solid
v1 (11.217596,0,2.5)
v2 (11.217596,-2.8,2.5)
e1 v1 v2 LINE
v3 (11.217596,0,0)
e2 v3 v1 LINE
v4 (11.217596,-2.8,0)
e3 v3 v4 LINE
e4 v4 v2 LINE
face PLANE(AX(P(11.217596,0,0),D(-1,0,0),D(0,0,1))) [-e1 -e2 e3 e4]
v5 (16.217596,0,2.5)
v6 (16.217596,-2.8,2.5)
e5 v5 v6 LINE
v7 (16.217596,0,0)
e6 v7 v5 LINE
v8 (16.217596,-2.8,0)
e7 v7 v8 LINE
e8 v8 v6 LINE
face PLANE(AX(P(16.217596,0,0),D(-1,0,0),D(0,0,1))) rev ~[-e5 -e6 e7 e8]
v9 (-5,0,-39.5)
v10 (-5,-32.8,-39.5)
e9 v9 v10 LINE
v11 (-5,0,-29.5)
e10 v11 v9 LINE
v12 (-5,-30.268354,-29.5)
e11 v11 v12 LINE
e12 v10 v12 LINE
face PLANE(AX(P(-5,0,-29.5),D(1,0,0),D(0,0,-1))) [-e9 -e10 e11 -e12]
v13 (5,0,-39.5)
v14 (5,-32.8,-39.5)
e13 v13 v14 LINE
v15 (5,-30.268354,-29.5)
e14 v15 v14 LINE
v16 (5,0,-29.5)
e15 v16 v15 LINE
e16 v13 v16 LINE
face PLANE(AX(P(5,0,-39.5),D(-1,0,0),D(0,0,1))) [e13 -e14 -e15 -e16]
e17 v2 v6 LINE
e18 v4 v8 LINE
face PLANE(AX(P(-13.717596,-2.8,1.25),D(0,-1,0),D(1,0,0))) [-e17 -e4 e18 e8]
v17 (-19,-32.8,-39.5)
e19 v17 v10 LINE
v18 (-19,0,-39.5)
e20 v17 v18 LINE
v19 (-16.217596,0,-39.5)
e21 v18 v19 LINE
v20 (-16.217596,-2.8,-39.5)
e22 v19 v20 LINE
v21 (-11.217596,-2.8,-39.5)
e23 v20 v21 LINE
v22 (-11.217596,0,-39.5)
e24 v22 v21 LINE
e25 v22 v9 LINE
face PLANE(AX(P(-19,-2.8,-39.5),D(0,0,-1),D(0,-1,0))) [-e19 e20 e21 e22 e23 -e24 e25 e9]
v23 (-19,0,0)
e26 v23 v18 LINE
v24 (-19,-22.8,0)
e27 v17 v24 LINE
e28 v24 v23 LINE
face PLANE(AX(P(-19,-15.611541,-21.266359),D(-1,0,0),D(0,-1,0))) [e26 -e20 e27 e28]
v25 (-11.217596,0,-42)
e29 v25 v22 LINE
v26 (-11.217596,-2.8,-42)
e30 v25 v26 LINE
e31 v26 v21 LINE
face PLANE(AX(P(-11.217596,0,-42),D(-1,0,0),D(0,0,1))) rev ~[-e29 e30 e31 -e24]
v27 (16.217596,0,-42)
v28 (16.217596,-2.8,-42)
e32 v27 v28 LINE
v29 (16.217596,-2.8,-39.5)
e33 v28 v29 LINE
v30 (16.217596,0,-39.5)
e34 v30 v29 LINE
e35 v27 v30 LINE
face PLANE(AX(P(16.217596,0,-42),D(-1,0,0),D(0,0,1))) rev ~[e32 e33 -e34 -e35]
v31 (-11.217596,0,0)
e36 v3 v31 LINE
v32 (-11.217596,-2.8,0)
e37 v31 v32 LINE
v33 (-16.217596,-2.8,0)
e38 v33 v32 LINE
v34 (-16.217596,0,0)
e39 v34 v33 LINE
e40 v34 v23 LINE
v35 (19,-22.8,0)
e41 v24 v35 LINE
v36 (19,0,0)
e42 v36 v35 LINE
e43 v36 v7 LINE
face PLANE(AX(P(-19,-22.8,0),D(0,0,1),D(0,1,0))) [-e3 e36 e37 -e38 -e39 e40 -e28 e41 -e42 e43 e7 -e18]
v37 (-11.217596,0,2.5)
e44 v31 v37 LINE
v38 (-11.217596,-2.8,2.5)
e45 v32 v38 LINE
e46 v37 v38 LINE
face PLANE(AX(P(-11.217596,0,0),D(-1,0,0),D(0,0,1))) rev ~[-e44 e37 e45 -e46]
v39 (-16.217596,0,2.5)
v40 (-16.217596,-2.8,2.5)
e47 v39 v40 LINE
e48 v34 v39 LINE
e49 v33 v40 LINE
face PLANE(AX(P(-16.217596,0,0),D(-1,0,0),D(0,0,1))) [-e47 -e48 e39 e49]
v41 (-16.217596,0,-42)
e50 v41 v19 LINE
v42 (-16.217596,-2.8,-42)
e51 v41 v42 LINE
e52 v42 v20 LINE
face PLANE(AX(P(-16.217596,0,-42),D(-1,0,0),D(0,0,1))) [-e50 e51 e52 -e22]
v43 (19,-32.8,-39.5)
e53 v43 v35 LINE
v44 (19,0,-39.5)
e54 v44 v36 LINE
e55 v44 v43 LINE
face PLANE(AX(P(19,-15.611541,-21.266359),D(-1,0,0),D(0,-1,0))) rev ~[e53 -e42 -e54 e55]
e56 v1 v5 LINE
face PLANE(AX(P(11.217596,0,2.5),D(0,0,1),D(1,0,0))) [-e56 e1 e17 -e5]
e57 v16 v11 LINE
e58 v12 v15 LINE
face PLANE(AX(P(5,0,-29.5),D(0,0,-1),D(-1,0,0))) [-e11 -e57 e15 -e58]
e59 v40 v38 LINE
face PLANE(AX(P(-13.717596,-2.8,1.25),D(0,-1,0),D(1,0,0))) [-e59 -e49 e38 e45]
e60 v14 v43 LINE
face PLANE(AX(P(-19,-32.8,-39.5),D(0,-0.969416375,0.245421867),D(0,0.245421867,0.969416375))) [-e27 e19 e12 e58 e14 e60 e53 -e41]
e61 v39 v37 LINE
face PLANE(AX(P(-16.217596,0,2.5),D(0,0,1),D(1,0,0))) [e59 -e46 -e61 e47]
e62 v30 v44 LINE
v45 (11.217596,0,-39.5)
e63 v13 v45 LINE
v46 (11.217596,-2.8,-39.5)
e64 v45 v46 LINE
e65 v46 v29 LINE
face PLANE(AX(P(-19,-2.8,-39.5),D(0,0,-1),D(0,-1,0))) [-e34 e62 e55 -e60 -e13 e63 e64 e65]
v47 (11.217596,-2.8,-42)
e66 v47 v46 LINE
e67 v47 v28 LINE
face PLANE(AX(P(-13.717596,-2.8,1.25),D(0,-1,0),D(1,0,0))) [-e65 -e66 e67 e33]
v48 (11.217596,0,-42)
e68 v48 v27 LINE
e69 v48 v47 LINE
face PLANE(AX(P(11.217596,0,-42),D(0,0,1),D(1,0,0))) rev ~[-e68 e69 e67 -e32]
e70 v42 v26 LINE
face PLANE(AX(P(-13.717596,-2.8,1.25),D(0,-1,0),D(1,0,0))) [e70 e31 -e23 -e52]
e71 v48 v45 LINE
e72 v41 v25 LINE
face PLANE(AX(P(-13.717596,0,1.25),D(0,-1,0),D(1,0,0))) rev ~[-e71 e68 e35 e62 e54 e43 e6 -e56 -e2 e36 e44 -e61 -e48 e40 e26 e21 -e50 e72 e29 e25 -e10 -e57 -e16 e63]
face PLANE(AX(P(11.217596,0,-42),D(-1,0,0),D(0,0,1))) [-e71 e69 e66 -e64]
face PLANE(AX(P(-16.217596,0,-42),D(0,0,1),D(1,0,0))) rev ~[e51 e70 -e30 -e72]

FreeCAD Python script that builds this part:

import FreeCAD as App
import Part
import Sketcher

doc = App.newDocument("Part")
body = doc.addObject("PartDesign::Body", "Body")

# Sketch on XZ plane
sketch1 = body.newObject("Sketcher::SketchObject", "Sketch")
sketch1.AttachmentSupport = (doc.getObject("XZ_Plane"), [""])
sketch1.MapMode = "FlatFace"
sketch1.addGeometry(Part.LineSegment(App.Vector(-16.2, 2.5, 0), App.Vector(-16.2, 0, 0)), False)
sketch1.addGeometry(Part.LineSegment(App.Vector(-16.2, 0, 0), App.Vector(-19, 0, 0)), False)
sketch1.addGeometry(Part.LineSegment(App.Vector(-19, 0, 0), App.Vector(-19, -39.5, 0)), False)
sketch1.addGeometry(Part.LineSegment(App.Vector(-19, -39.5, 0), App.Vector(-16.2, -39.5, 0)), False)
sketch1.addGeometry(Part.LineSegment(App.Vector(-16.2, -39.5, 0), App.Vector(-16.2, -42, 0)), False)
sketch1.addGeometry(Part.LineSegment(App.Vector(-16.2, -42, 0), App.Vector(-11.2, -42, 0)), False)
sketch1.addGeometry(Part.LineSegment(App.Vector(-11.2, -42, 0), App.Vector(-11.2, -39.5, 0)), False)
sketch1.addGeometry(Part.LineSegment(App.Vector(-11.2, -39.5, 0), App.Vector(11.2, -39.5, 0)), False)
sketch1.addGeometry(Part.LineSegment(App.Vector(11.2, -39.5, 0), App.Vector(11.2, -42, 0)), False)
sketch1.addGeometry(Part.LineSegment(App.Vector(11.2, -42, 0), App.Vector(16.2, -42, 0)), False)
sketch1.addGeometry(Part.LineSegment(App.Vector(16.2, -42, 0), App.Vector(16.2, -39.5, 0)), False)
sketch1.addGeometry(Part.LineSegment(App.Vector(16.2, -39.5, 0), App.Vector(19, -39.5, 0)), False)
sketch1.addGeometry(Part.LineSegment(App.Vector(19, -39.5, 0), App.Vector(19, 0, 0)), False)
sketch1.addGeometry(Part.LineSegment(App.Vector(19, 0, 0), App.Vector(16.2, 0, 0)), False)
sketch1.addGeometry(Part.LineSegment(App.Vector(16.2, 0, 0), App.Vector(16.2, 2.5, 0)), False)
sketch1.addGeometry(Part.LineSegment(App.Vector(16.2, 2.5, 0), App.Vector(11.2, 2.5, 0)), False)
sketch1.addGeometry(Part.LineSegment(App.Vector(11.2, 2.5, 0), App.Vector(11.2, 0, 0)), False)
sketch1.addGeometry(Part.LineSegment(App.Vector(11.2, 0, 0), App.Vector(-11.2, 0, 0)), False)
sketch1.addGeometry(Part.LineSegment(App.Vector(-11.2, 0, 0), App.Vector(-11.2, 2.5, 0)), False)
sketch1.addGeometry(Part.LineSegment(App.Vector(-11.2, 2.5, 0), App.Vector(-16.2, 2.5, 0)), False)
sketch1.addConstraint(Sketcher.Constraint("Coincident", 0, 2, 1, 1))
sketch1.addConstraint(Sketcher.Constraint("Coincident", 1, 2, 2, 1))
sketch1.addConstraint(Sketcher.Constraint("Coincident", 2, 2, 3, 1))
sketch1.addConstraint(Sketcher.Constraint("Coincident", 3, 2, 4, 1))
sketch1.addConstraint(Sketcher.Constraint("Coincident", 4, 2, 5, 1))
sketch1.addConstraint(Sketcher.Constraint("Coincident", 5, 2, 6, 1))
sketch1.addConstraint(Sketcher.Constraint("Coincident", 6, 2, 7, 1))
sketch1.addConstraint(Sketcher.Constraint("Coincident", 7, 2, 8, 1))
sketch1.addConstraint(Sketcher.Constraint("Coincident", 8, 2, 9, 1))
sketch1.addConstraint(Sketcher.Constraint("Coincident", 9, 2, 10, 1))
sketch1.addConstraint(Sketcher.Constraint("Coincident", 10, 2, 11, 1))
sketch1.addConstraint(Sketcher.Constraint("Coincident", 11, 2, 12, 1))
sketch1.addConstraint(Sketcher.Constraint("Coincident", 12, 2, 13, 1))
sketch1.addConstraint(Sketcher.Constraint("Coincident", 13, 2, 14, 1))
sketch1.addConstraint(Sketcher.Constraint("Coincident", 14, 2, 15, 1))
sketch1.addConstraint(Sketcher.Constraint("Coincident", 15, 2, 16, 1))
sketch1.addConstraint(Sketcher.Constraint("Coincident", 16, 2, 17, 1))
sketch1.addConstraint(Sketcher.Constraint("Coincident", 17, 2, 18, 1))
sketch1.addConstraint(Sketcher.Constraint("Coincident", 18, 2, 19, 1))
sketch1.addConstraint(Sketcher.Constraint("Coincident", 19, 2, 0, 1))
sketch1.addConstraint(Sketcher.Constraint("Vertical", 0))
sketch1.addConstraint(Sketcher.Constraint("Horizontal", 1))
sketch1.addConstraint(Sketcher.Constraint("Vertical", 2))
sketch1.addConstraint(Sketcher.Constraint("Horizontal", 3))
sketch1.addConstraint(Sketcher.Constraint("Vertical", 4))
sketch1.addConstraint(Sketcher.Constraint("Horizontal", 5))
sketch1.addConstraint(Sketcher.Constraint("Vertical", 6))
sketch1.addConstraint(Sketcher.Constraint("Horizontal", 7))
sketch1.addConstraint(Sketcher.Constraint("Vertical", 8))
sketch1.addConstraint(Sketcher.Constraint("Horizontal", 9))
sketch1.addConstraint(Sketcher.Constraint("Vertical", 10))
sketch1.addConstraint(Sketcher.Constraint("Horizontal", 11))
sketch1.addConstraint(Sketcher.Constraint("Vertical", 12))
sketch1.addConstraint(Sketcher.Constraint("Horizontal", 13))
sketch1.addConstraint(Sketcher.Constraint("Vertical", 14))
sketch1.addConstraint(Sketcher.Constraint("Horizontal", 15))
sketch1.addConstraint(Sketcher.Constraint("Vertical", 16))
sketch1.addConstraint(Sketcher.Constraint("Horizontal", 17))
sketch1.addConstraint(Sketcher.Constraint("Vertical", 18))
sketch1.addConstraint(Sketcher.Constraint("Horizontal", 19))
sketch1.addConstraint(Sketcher.Constraint("Symmetric", 1, 2, 12, 2, -1, 1))
sketch1.addConstraint(Sketcher.Constraint("Symmetric", 16, 2, 17, 2, -1, 1))
sketch1.addConstraint(Sketcher.Constraint("Symmetric", 5, 2, 8, 2, -2))
sketch1.addConstraint(Sketcher.Constraint("Symmetric", 3, 2, 10, 2, -2))
sketch1.addConstraint(Sketcher.Constraint("Symmetric", 0, 2, 13, 2, -2))
sketch1.addConstraint(Sketcher.Constraint("Horizontal", 3, 2, 6, 2))
sketch1.addConstraint(Sketcher.Constraint("Horizontal", 15, 2, 18, 2))
sketch1.addConstraint(Sketcher.Constraint("Vertical", 0, 2, 3, 2))
sketch1.addConstraint(Sketcher.Constraint("Vertical", 8, 2, 15, 2))
sketch1.addConstraint(Sketcher.Constraint("Equal", 0, 4))
sketch1.addConstraint(Sketcher.Constraint("DistanceX", 5, 1, 5, 2, 5.0))
sketch1.addConstraint(Sketcher.Constraint("DistanceY", 0, 2, 0, 1, 2.5))
sketch1.addConstraint(Sketcher.Constraint("DistanceY", 2, 2, 2, 1, 39.5))
sketch1.addConstraint(Sketcher.Constraint("DistanceX", 1, 2, -1, 1, 19.0))
sketch1.addConstraint(Sketcher.Constraint("DistanceX", 1, 2, 1, 1, 2.782404))
pad1 = body.newObject("PartDesign::Pad", "Pad")
pad1.Profile = sketch1
pad1.Length = 2.8

# Sketch on YZ plane
sketch2 = body.newObject("Sketcher::SketchObject", "Sketch001")
sketch2.AttachmentSupport = (doc.getObject("YZ_Plane"), [""])
sketch2.MapMode = "FlatFace"
sketch2.AttachmentOffset = App.Placement(App.Vector(0, 0, -19), App.Rotation())
sketch2.addGeometry(Part.LineSegment(App.Vector(-3, 0, 0), App.Vector(-3, -40, 0)), False)
sketch2.addGeometry(Part.LineSegment(App.Vector(-3, -40, 0), App.Vector(-33, -40, 0)), False)
sketch2.addGeometry(Part.LineSegment(App.Vector(-33, -40, 0), App.Vector(-23, 0, 0)), False)
sketch2.addGeometry(Part.LineSegment(App.Vector(-23, 0, 0), App.Vector(-3, 0, 0)), False)
sketch2.addConstraint(Sketcher.Constraint("Coincident", 0, 2, 1, 1))
sketch2.addConstraint(Sketcher.Constraint("Coincident", 1, 2, 2, 1))
sketch2.addConstraint(Sketcher.Constraint("Coincident", 2, 2, 3, 1))
sketch2.addConstraint(Sketcher.Constraint("Coincident", 3, 2, 0, 1))
sketch2.addConstraint(Sketcher.Constraint("Vertical", 0))
sketch2.addConstraint(Sketcher.Constraint("Horizontal", 1))
sketch2.addConstraint(Sketcher.Constraint("Horizontal", 3))
sketch2.addConstraint(Sketcher.Constraint("PointOnObject", 2, 2, -1))
sketch2.addConstraint(Sketcher.Constraint("DistanceX", 1, 2, 1, 1, 30.0))
sketch2.addConstraint(Sketcher.Constraint("DistanceX", 3, 1, 3, 2, 20.0))
sketch2.addConstraint(Sketcher.Constraint("DistanceY", 0, 2, 0, 1, 39.5))
sketch2.addConstraint(Sketcher.Constraint("DistanceX", 0, 2, -1, 1, 2.8))
pad2 = body.newObject("PartDesign::Pad", "Pad001")
pad2.Profile = sketch2
pad2.Length = 38

# Sketch on XZ plane
sketch3 = body.newObject("Sketcher::SketchObject", "Sketch002")
sketch3.AttachmentSupport = (doc.getObject("XZ_Plane"), [""])
sketch3.MapMode = "FlatFace"
sketch3.addGeometry(Part.LineSegment(App.Vector(-5, -30, 0), App.Vector(-5, -40, 0)), False)
sketch3.addGeometry(Part.LineSegment(App.Vector(-5, -40, 0), App.Vector(5, -40, 0)), False)
sketch3.addGeometry(Part.LineSegment(App.Vector(5, -40, 0), App.Vector(5, -30, 0)), False)
sketch3.addGeometry(Part.LineSegment(App.Vector(5, -30, 0), App.Vector(-5, -30, 0)), False)
sketch3.addConstraint(Sketcher.Constraint("Coincident", 0, 2, 1, 1))
sketch3.addConstraint(Sketcher.Constraint("Coincident", 1, 2, 2, 1))
sketch3.addConstraint(Sketcher.Constraint("Coincident", 2, 2, 3, 1))
sketch3.addConstraint(Sketcher.Constraint("Coincident", 3, 2, 0, 1))
sketch3.addConstraint(Sketcher.Constraint("Vertical", 0))
sketch3.addConstraint(Sketcher.Constraint("Horizontal", 1))
sketch3.addConstraint(Sketcher.Constraint("Vertical", 2))
sketch3.addConstraint(Sketcher.Constraint("Horizontal", 3))
sketch3.addConstraint(Sketcher.Constraint("Equal", 3, 0))
sketch3.addConstraint(Sketcher.Constraint("DistanceX", 1, 1, 1, 2, 10.0))
sketch3.addConstraint(Sketcher.Constraint("DistanceX", 0, 2, -1, 1, 5.0))
sketch3.addConstraint(Sketcher.Constraint("DistanceY", 0, 2, -1, 1, 39.5))
pocket1 = body.newObject("PartDesign::Pocket", "Pocket")
pocket1.Profile = sketch3
pocket1.Length = 40
pocket1.Reversed = True

doc.recompute()
